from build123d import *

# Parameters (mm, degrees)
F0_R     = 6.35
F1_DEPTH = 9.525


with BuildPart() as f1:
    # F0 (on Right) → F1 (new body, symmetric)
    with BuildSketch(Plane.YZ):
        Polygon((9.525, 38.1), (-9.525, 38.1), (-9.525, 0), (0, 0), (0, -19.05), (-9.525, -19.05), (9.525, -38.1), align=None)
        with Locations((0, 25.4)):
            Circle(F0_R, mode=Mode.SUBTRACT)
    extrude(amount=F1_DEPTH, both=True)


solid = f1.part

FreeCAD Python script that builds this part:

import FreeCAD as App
import Part
import Sketcher
from FreeCAD import Vector
Q = App.Units.Quantity


def add_polygon(sketch, points):
    """Adds a closed chain of lines whose ends are joined by coincident constraints."""
    first, n = sketch.GeometryCount, len(points)
    for a, b in zip(points, points[1:] + points[:1]):
        sketch.addGeometry(Part.LineSegment(App.Vector(*a, 0), App.Vector(*b, 0)), False)
    for i in range(n):
        sketch.addConstraint(Sketcher.Constraint("Coincident", first + i, 2, first + (i + 1) % n, 1))

doc = App.newDocument("Part")
body = doc.addObject("PartDesign::Body", "Body")

# Sketch on YZ plane
sketch1 = doc.addObject("Sketcher::SketchObject", "Sketch")
body.addObject(sketch1)
sketch1.AttachmentSupport = (doc.YZ_Plane, [""])
sketch1.MapMode = "FlatFace"
add_polygon(sketch1, [(9.525, 38.1), (-9.525, 38.1), (-9.525, 0), (0, 0), (0, -19.05), (-9.525, -19.05), (9.525, -38.1)])  # lines 0-6
sketch1.addGeometry(Part.Circle(Vector(0, 25.4, 0), Vector(0, 0, 1), 6.35), False)  # 7
sketch1.addConstraint(Sketcher.Constraint("Horizontal", 0))
sketch1.addConstraint(Sketcher.Constraint("Vertical", 1))
sketch1.addConstraint(Sketcher.Constraint("Horizontal", 2))
sketch1.addConstraint(Sketcher.Constraint("Vertical", 3))
sketch1.addConstraint(Sketcher.Constraint("Horizontal", 4))
sketch1.addConstraint(Sketcher.Constraint("Vertical", 6))
sketch1.addConstraint(Sketcher.Constraint("Coincident", 2, 2, -1, 1))
sketch1.addConstraint(Sketcher.Constraint("Symmetric", 0, 2, 5, 2, -1, 1))
sketch1.addConstraint(Sketcher.Constraint("PointOnObject", 7, 3, -2))
sketch1.addConstraint(Sketcher.Constraint("Vertical", 1, 2, 4, 2))
sketch1.addConstraint(Sketcher.Constraint("Equal", 0, 3))
sketch1.addConstraint(Sketcher.Constraint("Diameter", 7, Q("0.5 in")))
sketch1.addConstraint(Sketcher.Constraint("DistanceY", 6, 1, 6, 2, Q("3 in")))
sketch1.addConstraint(Sketcher.Constraint("DistanceY", -1, 1, 7, 3, Q("1 in")))
sketch1.addConstraint(Sketcher.Constraint("Angle", 5, Q("-45 deg")))
pad1 = doc.addObject("PartDesign::Pad", "Pad")
body.addObject(pad1)
pad1.Profile = sketch1
pad1.Length = Q("0.75 in")
pad1.Midplane = True

doc.recompute()
